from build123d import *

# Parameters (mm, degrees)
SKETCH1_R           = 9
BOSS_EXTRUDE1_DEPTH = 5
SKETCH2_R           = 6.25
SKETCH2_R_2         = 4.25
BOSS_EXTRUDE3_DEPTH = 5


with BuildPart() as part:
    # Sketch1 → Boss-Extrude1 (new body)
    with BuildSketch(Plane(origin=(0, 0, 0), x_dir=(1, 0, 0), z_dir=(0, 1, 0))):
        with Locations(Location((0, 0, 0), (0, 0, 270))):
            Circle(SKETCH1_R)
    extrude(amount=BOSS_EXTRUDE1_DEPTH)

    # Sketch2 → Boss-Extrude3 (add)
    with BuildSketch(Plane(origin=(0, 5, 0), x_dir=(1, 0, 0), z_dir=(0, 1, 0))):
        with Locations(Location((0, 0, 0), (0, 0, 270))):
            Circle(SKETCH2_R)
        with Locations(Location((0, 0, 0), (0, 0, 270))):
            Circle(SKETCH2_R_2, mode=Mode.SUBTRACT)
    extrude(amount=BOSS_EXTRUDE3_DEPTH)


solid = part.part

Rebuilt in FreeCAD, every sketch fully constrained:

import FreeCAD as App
import Part
import Sketcher

doc = App.newDocument("Part")
body = doc.addObject("PartDesign::Body", "Body")

# Sketch on XZ plane
sketch1 = body.newObject("Sketcher::SketchObject", "Sketch")
sketch1.AttachmentSupport = (doc.getObject("XZ_Plane"), [""])
sketch1.MapMode = "FlatFace"
sketch1.addGeometry(Part.Circle(App.Vector(0, 0, 0), App.Vector(0, 0, 1), 9), False)
sketch1.addConstraint([
    Sketcher.Constraint("Coincident", 0, 3, -1, 1),
    Sketcher.Constraint("Diameter", 0, 18.0),
])
pad1 = body.newObject("PartDesign::Pad", "Pad")
pad1.Profile = sketch1
pad1.Length = 5
pad1.Reversed = True

# Sketch on XZ plane
sketch2 = body.newObject("Sketcher::SketchObject", "Sketch001")
sketch2.AttachmentSupport = (doc.getObject("XZ_Plane"), [""])
sketch2.MapMode = "FlatFace"
sketch2.AttachmentOffset = App.Placement(App.Vector(0, 0, -5), App.Rotation())
sketch2.addGeometry([
    Part.Circle(App.Vector(0, 0, 0), App.Vector(0, 0, 1), 6.2),
    Part.Circle(App.Vector(0, 0, 0), App.Vector(0, 0, 1), 4.2),
], False)
sketch2.addConstraint([
    Sketcher.Constraint("Coincident", 0, 3, -1, 1),
    Sketcher.Constraint("Coincident", 1, 3, -1, 1),
    Sketcher.Constraint("Diameter", 0, 12.5),
    Sketcher.Constraint("Diameter", 1, 8.5),
])
pad2 = body.newObject("PartDesign::Pad", "Pad001")
pad2.Profile = sketch2
pad2.Length = 5
pad2.Reversed = True

doc.recompute()
